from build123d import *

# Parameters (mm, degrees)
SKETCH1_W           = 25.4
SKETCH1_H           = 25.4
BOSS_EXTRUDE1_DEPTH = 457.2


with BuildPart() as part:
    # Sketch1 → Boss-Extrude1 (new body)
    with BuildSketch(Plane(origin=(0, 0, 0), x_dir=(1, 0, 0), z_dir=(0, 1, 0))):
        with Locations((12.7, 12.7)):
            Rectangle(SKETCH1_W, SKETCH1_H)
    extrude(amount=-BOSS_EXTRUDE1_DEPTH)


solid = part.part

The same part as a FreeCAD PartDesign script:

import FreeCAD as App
import Part
import Sketcher

V = App.Vector
Q = App.Units.Quantity


def add_polygon(sketch, points):
    """Adds a closed chain of lines whose ends are joined by coincident constraints."""
    first, n = sketch.GeometryCount, len(points)
    for a, b in zip(points, points[1:] + points[:1]):
        sketch.addGeometry(Part.LineSegment(App.Vector(*a, 0), App.Vector(*b, 0)), False)
    for i in range(n):
        sketch.addConstraint(Sketcher.Constraint("Coincident", first + i, 2, first + (i + 1) % n, 1))

doc = App.newDocument("Part")
body = doc.addObject("PartDesign::Body", "Body")

sketch1 = body.newObject("Sketcher::SketchObject", "Sketch")
sketch1.AttachmentSupport = (doc.getObject("XZ_Plane"), [""])
sketch1.MapMode = "FlatFace"
add_polygon(sketch1, [(0, -25.4), (0, 0), (25.4, 0), (25.4, -25.4)])
sketch1.addConstraint(Sketcher.Constraint("Vertical", 0))
sketch1.addConstraint(Sketcher.Constraint("Horizontal", 1))
sketch1.addConstraint(Sketcher.Constraint("Vertical", 2))
sketch1.addConstraint(Sketcher.Constraint("Horizontal", 3))
sketch1.addConstraint(Sketcher.Constraint("Coincident", 0, 2, -1, 1))
sketch1.addConstraint(Sketcher.Constraint("Equal", 3, 0))
sketch1.addConstraint(Sketcher.Constraint("DistanceX", 1, 1, 1, 2, Q("1 in")))
pad1 = body.newObject("PartDesign::Pad", "Pad")
pad1.Profile = sketch1
pad1.Length = Q("18 in")

doc.recompute()
